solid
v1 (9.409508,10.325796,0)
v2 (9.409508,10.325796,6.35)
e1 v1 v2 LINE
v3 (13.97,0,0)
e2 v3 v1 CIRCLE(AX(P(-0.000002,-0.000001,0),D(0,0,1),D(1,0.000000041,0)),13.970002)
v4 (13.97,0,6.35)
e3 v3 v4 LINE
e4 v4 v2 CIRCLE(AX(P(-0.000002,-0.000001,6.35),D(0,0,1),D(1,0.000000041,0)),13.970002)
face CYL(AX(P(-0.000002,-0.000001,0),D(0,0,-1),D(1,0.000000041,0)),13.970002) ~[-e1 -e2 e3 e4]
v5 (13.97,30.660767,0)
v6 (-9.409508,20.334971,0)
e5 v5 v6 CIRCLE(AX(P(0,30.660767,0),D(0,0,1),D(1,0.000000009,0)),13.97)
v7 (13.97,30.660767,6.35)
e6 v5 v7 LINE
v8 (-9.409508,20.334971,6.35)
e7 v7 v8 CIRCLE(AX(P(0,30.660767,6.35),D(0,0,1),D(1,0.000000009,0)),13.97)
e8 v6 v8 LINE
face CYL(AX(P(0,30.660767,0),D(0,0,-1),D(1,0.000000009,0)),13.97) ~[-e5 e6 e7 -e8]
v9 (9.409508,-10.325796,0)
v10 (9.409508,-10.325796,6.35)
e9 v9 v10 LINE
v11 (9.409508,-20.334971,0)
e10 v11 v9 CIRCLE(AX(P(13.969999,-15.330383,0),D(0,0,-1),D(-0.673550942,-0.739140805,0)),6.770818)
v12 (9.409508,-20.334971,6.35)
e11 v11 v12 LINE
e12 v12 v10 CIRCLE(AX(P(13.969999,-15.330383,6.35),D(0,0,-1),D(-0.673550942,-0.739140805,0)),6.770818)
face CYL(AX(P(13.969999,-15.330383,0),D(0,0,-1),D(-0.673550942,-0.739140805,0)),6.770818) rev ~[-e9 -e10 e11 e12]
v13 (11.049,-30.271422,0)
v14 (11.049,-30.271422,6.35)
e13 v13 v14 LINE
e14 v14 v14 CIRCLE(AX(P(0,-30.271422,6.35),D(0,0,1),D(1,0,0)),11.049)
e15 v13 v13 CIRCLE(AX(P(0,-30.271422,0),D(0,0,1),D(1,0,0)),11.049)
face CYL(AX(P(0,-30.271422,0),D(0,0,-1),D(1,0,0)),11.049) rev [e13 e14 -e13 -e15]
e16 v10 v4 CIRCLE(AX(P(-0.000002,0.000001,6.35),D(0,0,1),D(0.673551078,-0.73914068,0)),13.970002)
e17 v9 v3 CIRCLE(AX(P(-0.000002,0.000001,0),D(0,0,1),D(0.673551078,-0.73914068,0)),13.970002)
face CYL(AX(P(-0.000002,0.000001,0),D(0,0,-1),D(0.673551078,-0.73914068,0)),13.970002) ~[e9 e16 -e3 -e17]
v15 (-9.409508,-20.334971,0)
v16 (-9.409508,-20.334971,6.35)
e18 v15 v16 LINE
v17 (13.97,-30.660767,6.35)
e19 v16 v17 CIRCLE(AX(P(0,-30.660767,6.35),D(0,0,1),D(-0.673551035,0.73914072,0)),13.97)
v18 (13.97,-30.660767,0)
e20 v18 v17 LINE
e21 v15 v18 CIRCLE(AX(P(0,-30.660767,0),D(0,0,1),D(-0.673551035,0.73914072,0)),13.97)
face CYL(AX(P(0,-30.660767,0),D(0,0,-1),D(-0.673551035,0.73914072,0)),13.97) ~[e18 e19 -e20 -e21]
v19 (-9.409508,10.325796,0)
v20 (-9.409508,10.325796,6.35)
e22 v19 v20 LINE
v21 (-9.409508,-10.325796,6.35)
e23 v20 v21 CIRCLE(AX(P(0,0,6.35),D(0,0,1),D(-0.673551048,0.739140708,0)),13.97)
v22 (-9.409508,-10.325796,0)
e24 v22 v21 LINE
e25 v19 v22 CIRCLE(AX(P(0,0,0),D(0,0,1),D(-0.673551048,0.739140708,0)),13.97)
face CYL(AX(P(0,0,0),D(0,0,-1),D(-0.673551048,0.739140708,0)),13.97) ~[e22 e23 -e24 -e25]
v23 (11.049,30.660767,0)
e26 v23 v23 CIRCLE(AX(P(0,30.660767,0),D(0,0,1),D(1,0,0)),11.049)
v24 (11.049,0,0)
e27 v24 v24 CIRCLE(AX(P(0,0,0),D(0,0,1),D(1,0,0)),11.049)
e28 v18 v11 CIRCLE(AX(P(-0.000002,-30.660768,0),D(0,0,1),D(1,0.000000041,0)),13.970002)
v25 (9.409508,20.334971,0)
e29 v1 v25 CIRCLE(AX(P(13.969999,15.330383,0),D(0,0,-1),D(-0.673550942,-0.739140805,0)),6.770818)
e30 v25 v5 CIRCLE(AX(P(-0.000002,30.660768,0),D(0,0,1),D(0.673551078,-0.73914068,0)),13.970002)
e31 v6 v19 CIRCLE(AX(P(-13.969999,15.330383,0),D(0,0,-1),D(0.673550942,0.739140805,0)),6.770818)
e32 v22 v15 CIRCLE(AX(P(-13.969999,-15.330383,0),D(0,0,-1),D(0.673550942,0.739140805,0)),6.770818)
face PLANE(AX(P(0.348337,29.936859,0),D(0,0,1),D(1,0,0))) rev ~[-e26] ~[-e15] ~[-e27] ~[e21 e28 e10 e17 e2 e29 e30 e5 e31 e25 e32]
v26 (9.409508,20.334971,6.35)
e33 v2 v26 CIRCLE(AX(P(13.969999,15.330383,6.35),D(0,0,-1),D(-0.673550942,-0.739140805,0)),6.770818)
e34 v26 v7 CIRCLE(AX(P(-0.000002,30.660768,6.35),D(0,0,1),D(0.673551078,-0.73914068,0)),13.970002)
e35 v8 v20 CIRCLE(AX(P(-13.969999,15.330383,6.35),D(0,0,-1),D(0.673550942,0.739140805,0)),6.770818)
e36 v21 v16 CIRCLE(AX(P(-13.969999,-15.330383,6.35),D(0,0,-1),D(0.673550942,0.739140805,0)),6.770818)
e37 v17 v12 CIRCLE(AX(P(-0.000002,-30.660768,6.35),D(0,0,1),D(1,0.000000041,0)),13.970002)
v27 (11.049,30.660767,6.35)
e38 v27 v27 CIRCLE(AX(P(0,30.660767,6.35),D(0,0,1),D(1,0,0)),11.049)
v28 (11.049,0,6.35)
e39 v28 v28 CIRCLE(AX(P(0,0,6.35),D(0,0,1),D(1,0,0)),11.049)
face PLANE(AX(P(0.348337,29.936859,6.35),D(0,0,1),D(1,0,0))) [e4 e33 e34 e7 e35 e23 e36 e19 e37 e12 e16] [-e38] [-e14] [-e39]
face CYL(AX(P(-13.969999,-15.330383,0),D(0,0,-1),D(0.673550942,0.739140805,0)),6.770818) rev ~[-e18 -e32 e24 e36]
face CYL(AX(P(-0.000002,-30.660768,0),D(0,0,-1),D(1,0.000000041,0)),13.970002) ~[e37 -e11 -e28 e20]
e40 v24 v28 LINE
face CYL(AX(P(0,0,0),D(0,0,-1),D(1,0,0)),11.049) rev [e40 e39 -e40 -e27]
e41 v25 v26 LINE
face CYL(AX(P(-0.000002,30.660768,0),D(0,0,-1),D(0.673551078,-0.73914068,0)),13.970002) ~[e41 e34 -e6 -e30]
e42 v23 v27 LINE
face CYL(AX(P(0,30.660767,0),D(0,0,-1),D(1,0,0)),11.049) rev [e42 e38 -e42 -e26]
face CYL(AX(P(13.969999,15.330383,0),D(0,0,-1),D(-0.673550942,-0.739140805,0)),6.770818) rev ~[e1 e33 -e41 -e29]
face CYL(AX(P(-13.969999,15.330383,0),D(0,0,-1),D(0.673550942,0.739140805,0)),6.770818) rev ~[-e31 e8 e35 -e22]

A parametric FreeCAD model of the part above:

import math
import FreeCAD as App
import Part
import Sketcher
from FreeCAD import Vector
Q = App.Units.Quantity

doc = App.newDocument("Part")
params = doc.addObject("Spreadsheet::Sheet", "Params")
for row, (alias, value) in enumerate([
    ("sketch1_diameter", "0.87 in"),
    ("sketch1_radius", "0.5500001 in"),
    ("pad1_length", "0.25 in"),
], start=1):
    params.set(f"A{row}", alias)
    params.set(f"B{row}", "=" + value)
    params.setAlias(f"B{row}", alias)

body = doc.addObject("PartDesign::Body", "Body")

# Sketch on XY plane
sketch1 = doc.addObject("Sketcher::SketchObject", "Sketch")
body.addObject(sketch1)
sketch1.AttachmentSupport = (doc.XY_Plane, [""])
sketch1.MapMode = "FlatFace"
sketch1.addGeometry(Part.ArcOfCircle(Part.Circle(Vector(0, 31, 0), Vector(0, 0, 1), 14), math.radians(-48), math.radians(0)), False)
sketch1.addGeometry(Part.ArcOfCircle(Part.Circle(Vector(0, 31, 0), Vector(0, 0, 1), 14), math.radians(0), math.radians(228)), False)
sketch1.addGeometry(Part.ArcOfCircle(Part.Circle(Vector(-14, 15, 0), Vector(0, 0, 1), 7), math.radians(-48), math.radians(48)), False)
sketch1.addGeometry(Part.ArcOfCircle(Part.Circle(Vector(0, 0, 0), Vector(0, 0, 1), 14), math.radians(132), math.radians(228)), False)
sketch1.addGeometry(Part.ArcOfCircle(Part.Circle(Vector(-14, -15, 0), Vector(0, 0, 1), 7), math.radians(-48), math.radians(48)), False)
sketch1.addGeometry(Part.ArcOfCircle(Part.Circle(Vector(0, -31, 0), Vector(0, 0, 1), 14), math.radians(132), math.radians(360)), False)
sketch1.addGeometry(Part.ArcOfCircle(Part.Circle(Vector(0, -31, 0), Vector(0, 0, 1), 14), math.radians(0), math.radians(48)), False)
sketch1.addGeometry(Part.ArcOfCircle(Part.Circle(Vector(14, -15, 0), Vector(0, 0, 1), 7), math.radians(132), math.radians(228)), False)
sketch1.addGeometry(Part.ArcOfCircle(Part.Circle(Vector(0, 0, 0), Vector(0, 0, 1), 14), math.radians(-48), math.radians(0)), False)
sketch1.addGeometry(Part.ArcOfCircle(Part.Circle(Vector(0, 0, 0), Vector(0, 0, 1), 14), math.radians(0), math.radians(48)), False)
sketch1.addGeometry(Part.ArcOfCircle(Part.Circle(Vector(14, 15, 0), Vector(0, 0, 1), 7), math.radians(132), math.radians(228)), False)
sketch1.addGeometry(Part.Circle(Vector(0, -30, 0), Vector(0, 0, 1), 11), False)
sketch1.addGeometry(Part.Circle(Vector(0, 0, 0), Vector(0, 0, 1), 11), False)
sketch1.addGeometry(Part.Circle(Vector(0, 31, 0), Vector(0, 0, 1), 11), False)
sketch1.addConstraint(Sketcher.Constraint("Tangent", 0, 2, 1, 1))
sketch1.addConstraint(Sketcher.Constraint("Tangent", 1, 2, 2, 2))
sketch1.addConstraint(Sketcher.Constraint("Tangent", 2, 1, 3, 1))
sketch1.addConstraint(Sketcher.Constraint("Tangent", 3, 2, 4, 2))
sketch1.addConstraint(Sketcher.Constraint("Tangent", 4, 1, 5, 1))
sketch1.addConstraint(Sketcher.Constraint("Tangent", 5, 2, 6, 1))
sketch1.addConstraint(Sketcher.Constraint("Tangent", 6, 2, 7, 2))
sketch1.addConstraint(Sketcher.Constraint("Tangent", 7, 1, 8, 1))
sketch1.addConstraint(Sketcher.Constraint("Tangent", 8, 2, 9, 1))
sketch1.addConstraint(Sketcher.Constraint("Tangent", 9, 2, 10, 2))
sketch1.addConstraint(Sketcher.Constraint("Tangent", 10, 1, 0, 1))
sketch1.addConstraint(Sketcher.Constraint("Coincident", 3, 3, -1, 1))
sketch1.addConstraint(Sketcher.Constraint("Coincident", 8, 3, -1, 1))
sketch1.addConstraint(Sketcher.Constraint("Coincident", 12, 3, -1, 1))
sketch1.addConstraint(Sketcher.Constraint("Coincident", 13, 3, 0, 3))
sketch1.addConstraint(Sketcher.Constraint("Equal", 0, 1))
sketch1.addConstraint(Sketcher.Constraint("Equal", 1, 3))
sketch1.addConstraint(Sketcher.Constraint("Equal", 2, 4))
sketch1.addConstraint(Sketcher.Constraint("Equal", 3, 5))
sketch1.addConstraint(Sketcher.Constraint("Equal", 5, 6))
sketch1.addConstraint(Sketcher.Constraint("Equal", 4, 7))
sketch1.addConstraint(Sketcher.Constraint("Equal", 6, 8))
sketch1.addConstraint(Sketcher.Constraint("Equal", 8, 9))
sketch1.addConstraint(Sketcher.Constraint("Equal", 7, 10))
sketch1.addConstraint(Sketcher.Constraint("Equal", 11, 12))
sketch1.addConstraint(Sketcher.Constraint("Equal", 12, 13))
sketch1.addConstraint(Sketcher.Constraint("Symmetric", 0, 3, 5, 3, -1, 1))
sketch1.addConstraint(Sketcher.Constraint("Symmetric", 0, 2, 5, 2, -1))
sketch1.addConstraint(Sketcher.Constraint("PointOnObject", 11, 3, -2))
sketch1.addConstraint(Sketcher.Constraint("PointOnObject", 8, 2, -1))
sketch1.addConstraint(Sketcher.Constraint("Horizontal", 13, 3, 0, 2))
sketch1.addConstraint(Sketcher.Constraint("Vertical", 10, 3, 0, 2))
sketch1.addConstraint(Sketcher.Constraint("Diameter", 11, Q("0.87 in")))
sketch1.addConstraint(Sketcher.Constraint("Radius", 0, Q("0.5500001 in")))
sketch1.addConstraint(Sketcher.Constraint("Radius", 2, Q("6.770818 mm")))
sketch1.addConstraint(Sketcher.Constraint("DistanceY", 11, 3, 4, 3, Q("14.941039 mm")))
sketch1.setExpression("Constraints[32]", "Params.sketch1_diameter")
sketch1.setExpression("Constraints[33]", "Params.sketch1_radius")
pad1 = doc.addObject("PartDesign::Pad", "Pad")
body.addObject(pad1)
pad1.Profile = sketch1
pad1.setExpression("Length", "Params.pad1_length")

doc.recompute()
